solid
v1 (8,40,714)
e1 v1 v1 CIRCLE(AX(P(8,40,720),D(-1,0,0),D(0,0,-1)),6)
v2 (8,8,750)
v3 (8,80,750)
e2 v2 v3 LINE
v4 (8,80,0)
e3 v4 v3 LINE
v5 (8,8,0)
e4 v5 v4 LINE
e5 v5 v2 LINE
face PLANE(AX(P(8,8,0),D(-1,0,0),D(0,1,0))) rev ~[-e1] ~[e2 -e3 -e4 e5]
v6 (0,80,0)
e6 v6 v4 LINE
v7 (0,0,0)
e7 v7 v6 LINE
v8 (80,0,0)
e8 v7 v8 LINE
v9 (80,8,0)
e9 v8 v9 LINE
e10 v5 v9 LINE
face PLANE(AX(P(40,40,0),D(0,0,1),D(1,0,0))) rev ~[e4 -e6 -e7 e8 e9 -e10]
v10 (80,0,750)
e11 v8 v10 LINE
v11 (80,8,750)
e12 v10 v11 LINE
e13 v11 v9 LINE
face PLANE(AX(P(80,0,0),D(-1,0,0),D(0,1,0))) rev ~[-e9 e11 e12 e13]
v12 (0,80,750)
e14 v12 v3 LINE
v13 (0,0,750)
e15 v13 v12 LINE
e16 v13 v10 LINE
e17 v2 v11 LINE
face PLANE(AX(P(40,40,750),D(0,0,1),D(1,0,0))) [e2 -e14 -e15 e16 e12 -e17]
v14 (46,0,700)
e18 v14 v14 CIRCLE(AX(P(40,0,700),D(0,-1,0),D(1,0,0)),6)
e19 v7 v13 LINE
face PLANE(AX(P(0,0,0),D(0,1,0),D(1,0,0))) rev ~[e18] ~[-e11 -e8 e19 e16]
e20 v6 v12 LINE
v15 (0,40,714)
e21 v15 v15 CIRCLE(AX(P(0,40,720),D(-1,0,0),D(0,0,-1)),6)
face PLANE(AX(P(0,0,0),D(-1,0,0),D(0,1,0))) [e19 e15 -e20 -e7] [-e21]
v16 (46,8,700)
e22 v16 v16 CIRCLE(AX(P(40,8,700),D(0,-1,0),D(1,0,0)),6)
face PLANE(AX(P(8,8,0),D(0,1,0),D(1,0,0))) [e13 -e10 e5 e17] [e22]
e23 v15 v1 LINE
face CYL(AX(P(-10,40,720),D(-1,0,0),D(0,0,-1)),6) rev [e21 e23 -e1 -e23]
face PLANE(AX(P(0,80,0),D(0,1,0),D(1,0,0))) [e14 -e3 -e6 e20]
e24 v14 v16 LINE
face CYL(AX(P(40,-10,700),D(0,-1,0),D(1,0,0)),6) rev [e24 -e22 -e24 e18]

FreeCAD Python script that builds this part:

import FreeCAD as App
import Part
import Sketcher

V = App.Vector


def add_polygon(sketch, points):
    """Adds a closed chain of lines whose ends are joined by coincident constraints."""
    first, n = sketch.GeometryCount, len(points)
    for a, b in zip(points, points[1:] + points[:1]):
        sketch.addGeometry(Part.LineSegment(App.Vector(*a, 0), App.Vector(*b, 0)), False)
    for i in range(n):
        sketch.addConstraint(Sketcher.Constraint("Coincident", first + i, 2, first + (i + 1) % n, 1))

doc = App.newDocument("Part")
params = doc.addObject("Spreadsheet::Sheet", "Params")
for row, (alias, value) in enumerate([
    ("sketch1_diameter", "12 mm"),
    ("pad1_length", "900 mm"),
    ("sketch2_diameter", "12 mm"),
    ("pad2_length", "1300 mm"),
    ("sketch3_width", "80 mm"),
    ("pad3_length", "750 mm"),
    ("sketch4_width", "80 mm"),
    ("pad4_length", "750 mm"),
], start=1):
    params.set(f"A{row}", alias)
    params.set(f"B{row}", "=" + value)
    params.setAlias(f"B{row}", alias)

body = doc.addObject("PartDesign::Body", "Body")

# Sketch on XZ plane
sketch1 = body.newObject("Sketcher::SketchObject", "Sketch")
sketch1.AttachmentSupport = (doc.getObject("XZ_Plane"), [""])
sketch1.MapMode = "FlatFace"
sketch1.AttachmentOffset = App.Placement(V(0, 0, 10), App.Rotation())
sketch1.addGeometry(Part.Circle(V(40, 700, 0), V(0, 0, 1), 6), False)
sketch1.addConstraint([
    Sketcher.Constraint("Diameter", 0, 12.0),
    Sketcher.Constraint("DistanceX", -1, 1, 0, 3, 40.0),
    Sketcher.Constraint("DistanceY", -1, 1, 0, 3, 700.0),
])
sketch1.setExpression("Constraints[0]", "Params.sketch1_diameter")
pad1 = body.newObject("PartDesign::Pad", "Pad")
pad1.Profile = sketch1
pad1.setExpression("Length", "Params.pad1_length")
pad1.Reversed = True
body2 = doc.addObject("PartDesign::Body", "Body001")

# Sketch on YZ plane
sketch2 = body2.newObject("Sketcher::SketchObject", "Sketch001")
sketch2.AttachmentSupport = (doc.getObject("YZ_Plane001"), [""])
sketch2.MapMode = "FlatFace"
sketch2.AttachmentOffset = App.Placement(V(0, 0, -10), App.Rotation())
sketch2.addGeometry(Part.Circle(V(40, 720, 0), V(0, 0, 1), 6), False)
sketch2.addConstraint([
    Sketcher.Constraint("Diameter", 0, 12.0),
    Sketcher.Constraint("DistanceX", -1, 1, 0, 3, 40.0),
    Sketcher.Constraint("DistanceY", -1, 1, 0, 3, 720.0),
])
sketch2.setExpression("Constraints[0]", "Params.sketch2_diameter")
pad2 = body2.newObject("PartDesign::Pad", "Pad001")
pad2.Profile = sketch2
pad2.setExpression("Length", "Params.pad2_length")
body3 = doc.addObject("PartDesign::Body", "Body002")

# Sketch on XY plane
sketch3 = body3.newObject("Sketcher::SketchObject", "Sketch002")
sketch3.AttachmentSupport = (doc.getObject("XY_Plane002"), [""])
sketch3.MapMode = "FlatFace"
add_polygon(sketch3, [(8, 88), (8, 8), (88, 8), (88, 88)])  # lines 0-3
sketch3.addConstraint([
    Sketcher.Constraint("Vertical", 0),
    Sketcher.Constraint("Horizontal", 1),
    Sketcher.Constraint("Vertical", 2),
    Sketcher.Constraint("Horizontal", 3),
    Sketcher.Constraint("Equal", 3, 0),
    Sketcher.Constraint("DistanceX", 1, 1, 1, 2, 80.0),
    Sketcher.Constraint("DistanceX", -1, 1, 0, 2, 8.0),
    Sketcher.Constraint("DistanceY", -1, 1, 0, 2, 8.0),
])
sketch3.setExpression("Constraints[9]", "Params.sketch3_width")
pad3 = body3.newObject("PartDesign::Pad", "Pad002")
pad3.Profile = sketch3
pad3.setExpression("Length", "Params.pad3_length")
body4 = doc.addObject("PartDesign::Body", "Body003")

# Sketch on XY plane
sketch4 = body4.newObject("Sketcher::SketchObject", "Sketch003")
sketch4.AttachmentSupport = (doc.getObject("XY_Plane003"), [""])
sketch4.MapMode = "FlatFace"
add_polygon(sketch4, [(0, 80), (0, 0), (80, 0), (80, 80)])  # lines 0-3
sketch4.addConstraint([
    Sketcher.Constraint("Vertical", 0),
    Sketcher.Constraint("Horizontal", 1),
    Sketcher.Constraint("Vertical", 2),
    Sketcher.Constraint("Horizontal", 3),
    Sketcher.Constraint("Coincident", 0, 2, -1, 1),
    Sketcher.Constraint("Equal", 3, 0),
    Sketcher.Constraint("DistanceX", 1, 1, 1, 2, 80.0),
])
sketch4.setExpression("Constraints[10]", "Params.sketch4_width")
pad4 = body4.newObject("PartDesign::Pad", "Pad003")
pad4.Profile = sketch4
pad4.setExpression("Length", "Params.pad4_length")
doc.recompute()

boolean = body4.newObject("PartDesign::Boolean", "Boolean")
boolean.Type = "Cut"
boolean.addObjects([body3])
doc.recompute()

boolean2 = body4.newObject("PartDesign::Boolean", "Boolean001")
boolean2.Type = "Cut"
boolean2.addObjects([body2])
doc.recompute()

boolean3 = body4.newObject("PartDesign::Boolean", "Boolean002")
boolean3.Type = "Cut"
boolean3.addObjects([body])

doc.recompute()
